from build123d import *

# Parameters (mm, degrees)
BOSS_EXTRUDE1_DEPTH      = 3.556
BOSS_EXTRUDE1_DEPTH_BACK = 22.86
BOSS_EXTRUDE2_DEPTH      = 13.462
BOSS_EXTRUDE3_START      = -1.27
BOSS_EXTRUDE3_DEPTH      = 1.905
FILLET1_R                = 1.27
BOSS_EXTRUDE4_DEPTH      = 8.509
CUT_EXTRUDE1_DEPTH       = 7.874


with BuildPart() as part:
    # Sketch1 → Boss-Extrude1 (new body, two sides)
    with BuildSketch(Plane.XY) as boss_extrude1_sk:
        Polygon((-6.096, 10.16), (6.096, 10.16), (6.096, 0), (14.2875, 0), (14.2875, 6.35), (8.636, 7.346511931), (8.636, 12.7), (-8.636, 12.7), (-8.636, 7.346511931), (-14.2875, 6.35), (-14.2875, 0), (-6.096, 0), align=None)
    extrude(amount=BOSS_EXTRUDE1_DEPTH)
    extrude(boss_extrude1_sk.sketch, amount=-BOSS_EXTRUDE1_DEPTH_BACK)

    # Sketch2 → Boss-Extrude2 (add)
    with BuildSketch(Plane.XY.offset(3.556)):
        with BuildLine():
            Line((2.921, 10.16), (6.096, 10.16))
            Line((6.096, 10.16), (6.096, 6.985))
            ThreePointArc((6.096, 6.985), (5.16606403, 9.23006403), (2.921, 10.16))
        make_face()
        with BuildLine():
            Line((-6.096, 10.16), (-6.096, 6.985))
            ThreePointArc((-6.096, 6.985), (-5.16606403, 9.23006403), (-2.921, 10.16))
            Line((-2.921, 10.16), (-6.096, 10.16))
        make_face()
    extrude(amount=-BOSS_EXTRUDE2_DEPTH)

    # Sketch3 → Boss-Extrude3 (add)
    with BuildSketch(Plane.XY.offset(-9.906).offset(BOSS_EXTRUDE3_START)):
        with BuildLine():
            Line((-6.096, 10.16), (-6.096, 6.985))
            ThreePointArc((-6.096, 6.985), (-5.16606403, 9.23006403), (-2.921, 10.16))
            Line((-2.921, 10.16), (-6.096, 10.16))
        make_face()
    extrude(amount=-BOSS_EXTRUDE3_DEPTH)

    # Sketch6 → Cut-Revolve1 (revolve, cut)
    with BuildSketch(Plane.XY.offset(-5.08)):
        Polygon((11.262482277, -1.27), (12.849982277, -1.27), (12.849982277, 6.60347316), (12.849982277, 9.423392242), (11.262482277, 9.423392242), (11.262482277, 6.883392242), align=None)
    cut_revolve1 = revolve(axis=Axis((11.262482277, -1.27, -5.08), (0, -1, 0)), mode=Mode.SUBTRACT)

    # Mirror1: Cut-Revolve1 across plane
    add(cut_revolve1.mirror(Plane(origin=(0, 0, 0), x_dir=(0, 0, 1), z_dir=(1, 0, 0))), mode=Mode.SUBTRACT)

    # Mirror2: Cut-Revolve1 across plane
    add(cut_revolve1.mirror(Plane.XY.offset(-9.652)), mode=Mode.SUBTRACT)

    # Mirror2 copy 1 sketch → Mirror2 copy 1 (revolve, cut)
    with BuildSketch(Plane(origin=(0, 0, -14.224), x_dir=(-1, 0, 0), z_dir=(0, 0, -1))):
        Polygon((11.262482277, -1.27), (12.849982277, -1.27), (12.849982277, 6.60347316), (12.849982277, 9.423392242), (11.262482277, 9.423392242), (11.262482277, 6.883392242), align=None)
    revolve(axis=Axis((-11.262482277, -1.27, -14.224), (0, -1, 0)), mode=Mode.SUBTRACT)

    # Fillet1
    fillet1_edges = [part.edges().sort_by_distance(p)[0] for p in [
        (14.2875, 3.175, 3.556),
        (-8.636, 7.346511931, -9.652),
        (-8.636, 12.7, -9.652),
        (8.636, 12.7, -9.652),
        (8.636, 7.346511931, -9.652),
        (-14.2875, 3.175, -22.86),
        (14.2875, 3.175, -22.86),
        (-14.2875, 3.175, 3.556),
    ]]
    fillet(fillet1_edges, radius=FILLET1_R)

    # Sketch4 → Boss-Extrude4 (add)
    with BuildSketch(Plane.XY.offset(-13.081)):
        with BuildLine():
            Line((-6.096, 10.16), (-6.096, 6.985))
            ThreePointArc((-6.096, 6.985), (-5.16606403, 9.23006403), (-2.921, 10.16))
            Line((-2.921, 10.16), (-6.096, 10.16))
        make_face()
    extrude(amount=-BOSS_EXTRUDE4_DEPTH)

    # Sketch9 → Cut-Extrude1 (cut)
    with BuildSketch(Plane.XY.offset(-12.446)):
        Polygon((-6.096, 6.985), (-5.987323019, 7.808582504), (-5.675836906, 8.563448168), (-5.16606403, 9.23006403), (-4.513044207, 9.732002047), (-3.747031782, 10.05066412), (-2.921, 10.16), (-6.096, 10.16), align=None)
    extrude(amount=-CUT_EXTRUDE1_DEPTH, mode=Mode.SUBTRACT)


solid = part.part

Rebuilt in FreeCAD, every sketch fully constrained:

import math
import FreeCAD as App
import Part
import Sketcher
Q = App.Units.Quantity


def edges_at(feature, points):
    """Names of the edges that pass closest to the given points."""
    edges = feature.Shape.Edges
    near = lambda p: min(range(len(edges)), key=lambda i: edges[i].distToShape(Part.Vertex(*p))[0])
    return sorted({f"Edge{near(p) + 1}" for p in points})

doc = App.newDocument("Part")
body = doc.addObject("PartDesign::Body", "Body")

# Sketch on XY plane
sketch1 = body.newObject("Sketcher::SketchObject", "Sketch")
sketch1.AttachmentSupport = (doc.getObject("XY_Plane"), [""])
sketch1.MapMode = "FlatFace"
sketch1.addGeometry([
    Part.LineSegment(App.Vector(-6, 10, 0), App.Vector(6, 10, 0)),  # 0
    Part.LineSegment(App.Vector(6, 10, 0), App.Vector(6, 0, 0)),  # 1
    Part.LineSegment(App.Vector(6, 0, 0), App.Vector(14, 0, 0)),  # 2
    Part.LineSegment(App.Vector(14, 0, 0), App.Vector(14, 6, 0)),  # 3
    Part.LineSegment(App.Vector(14, 6, 0), App.Vector(9, 7, 0)),  # 4
    Part.LineSegment(App.Vector(9, 7, 0), App.Vector(9, 13, 0)),  # 5
    Part.LineSegment(App.Vector(9, 13, 0), App.Vector(-9, 13, 0)),  # 6
    Part.LineSegment(App.Vector(-9, 13, 0), App.Vector(-9, 7, 0)),  # 7
    Part.LineSegment(App.Vector(-9, 7, 0), App.Vector(-14, 6, 0)),  # 8
    Part.LineSegment(App.Vector(-14, 6, 0), App.Vector(-14, 0, 0)),  # 9
    Part.LineSegment(App.Vector(-14, 0, 0), App.Vector(-6, 0, 0)),  # 10
    Part.LineSegment(App.Vector(-6, 0, 0), App.Vector(-6, 10, 0)),  # 11
], False)
sketch1.addConstraint([
    Sketcher.Constraint("Coincident", 0, 2, 1, 1),
    Sketcher.Constraint("Coincident", 1, 2, 2, 1),
    Sketcher.Constraint("Coincident", 2, 2, 3, 1),
    Sketcher.Constraint("Coincident", 3, 2, 4, 1),
    Sketcher.Constraint("Coincident", 4, 2, 5, 1),
    Sketcher.Constraint("Coincident", 5, 2, 6, 1),
    Sketcher.Constraint("Coincident", 6, 2, 7, 1),
    Sketcher.Constraint("Coincident", 7, 2, 8, 1),
    Sketcher.Constraint("Coincident", 8, 2, 9, 1),
    Sketcher.Constraint("Coincident", 9, 2, 10, 1),
    Sketcher.Constraint("Coincident", 10, 2, 11, 1),
    Sketcher.Constraint("Coincident", 11, 2, 0, 1),
    Sketcher.Constraint("Horizontal", 0),
    Sketcher.Constraint("Vertical", 1),
    Sketcher.Constraint("Horizontal", 2),
    Sketcher.Constraint("Vertical", 3),
    Sketcher.Constraint("Vertical", 5),
    Sketcher.Constraint("Horizontal", 6),
    Sketcher.Constraint("Vertical", 7),
    Sketcher.Constraint("Vertical", 9),
    Sketcher.Constraint("Horizontal", 10),
    Sketcher.Constraint("Vertical", 11),
    Sketcher.Constraint("Symmetric", 2, 2, 9, 2, -1, 1),
    Sketcher.Constraint("Symmetric", 4, 2, 7, 2, -2),
    Sketcher.Constraint("Symmetric", 1, 2, 10, 2, -2),
    Sketcher.Constraint("Horizontal", 3, 2, 8, 2),
    Sketcher.Constraint("DistanceY", 1, 2, 1, 1, Q("0.4 in")),
    Sketcher.Constraint("Angle", 4, Q("170 deg")),
    Sketcher.Constraint("DistanceX", 0, 1, 0, 2, Q("0.48 in")),
    Sketcher.Constraint("DistanceX", 6, 2, 6, 1, Q("0.68 in")),
    Sketcher.Constraint("DistanceY", 3, 1, 3, 2, Q("0.25 in")),
    Sketcher.Constraint("DistanceY", -1, 1, 5, 2, Q("0.5 in")),
    Sketcher.Constraint("DistanceX", 2, 1, 2, 2, Q("0.3225 in")),
])
pad1 = body.newObject("PartDesign::Pad", "Pad")
pad1.Profile = sketch1
pad1.Type = "TwoLengths"
pad1.Length = Q("0.14 in")
pad1.Length2 = Q("0.9 in")

# Sketch on XY plane
sketch2 = body.newObject("Sketcher::SketchObject", "Sketch001")
sketch2.AttachmentSupport = (doc.getObject("XY_Plane"), [""])
sketch2.MapMode = "FlatFace"
sketch2.AttachmentOffset = App.Placement(App.Vector(0, 0, 0.14 * 25.4), App.Rotation())
sketch2.addGeometry([
    Part.LineSegment(App.Vector(6.1, 10.2, 0), App.Vector(2.9, 10.2, 0)),  # 0
    Part.ArcOfCircle(Part.Circle(App.Vector(2.9, 7, 0), App.Vector(0, 0, 1), 3.2), math.radians(0), math.radians(90)),  # 1
    Part.LineSegment(App.Vector(6.1, 7, 0), App.Vector(6.1, 10.2, 0)),  # 2
    Part.LineSegment(App.Vector(-6.1, 10.2, 0), App.Vector(-6.1, 7, 0)),  # 3
    Part.ArcOfCircle(Part.Circle(App.Vector(-2.9, 7, 0), App.Vector(0, 0, 1), 3.2), math.radians(90), math.radians(180)),  # 4
    Part.LineSegment(App.Vector(-2.9, 10.2, 0), App.Vector(-6.1, 10.2, 0)),  # 5
], False)
sketch2.addConstraint([
    Sketcher.Constraint("Tangent", 0, 2, 1, 2),
    Sketcher.Constraint("Tangent", 1, 1, 2, 1),
    Sketcher.Constraint("Coincident", 2, 2, 0, 1),
    Sketcher.Constraint("Tangent", 3, 2, 4, 2),
    Sketcher.Constraint("Tangent", 4, 1, 5, 1),
    Sketcher.Constraint("Coincident", 5, 2, 3, 1),
    Sketcher.Constraint("Horizontal", 0),
    Sketcher.Constraint("Vertical", 2),
    Sketcher.Constraint("Vertical", 3),
    Sketcher.Constraint("Horizontal", 5),
    Sketcher.Constraint("Equal", 1, 4),
    Sketcher.Constraint("Symmetric", 1, 3, 4, 3, -2),
    Sketcher.Constraint("Radius", 1, Q("0.125 in")),
    Sketcher.Constraint("DistanceY", -1, 1, 0, 2, Q("0.4 in")),
    Sketcher.Constraint("DistanceX", -1, 1, 1, 1, Q("0.24 in")),
])
pad2 = body.newObject("PartDesign::Pad", "Pad001")
pad2.Profile = sketch2
pad2.Length = Q("0.53 in")
pad2.Reversed = True

# Sketch on XY plane
sketch3 = body.newObject("Sketcher::SketchObject", "Sketch002")
sketch3.AttachmentSupport = (doc.getObject("XY_Plane"), [""])
sketch3.MapMode = "FlatFace"
sketch3.AttachmentOffset = App.Placement(App.Vector(0, 0, -0.44 * 25.4), App.Rotation())
sketch3.addGeometry([
    Part.LineSegment(App.Vector(-6.1, 10.2, 0), App.Vector(-6.1, 7, 0)),
    Part.ArcOfCircle(Part.Circle(App.Vector(-2.9, 7, 0), App.Vector(0, 0, 1), 3.2), math.radians(90), math.radians(180)),
    Part.LineSegment(App.Vector(-2.9, 10.2, 0), App.Vector(-6.1, 10.2, 0)),
], False)
sketch3.addConstraint([
    Sketcher.Constraint("Tangent", 0, 2, 1, 2),
    Sketcher.Constraint("Tangent", 1, 1, 2, 1),
    Sketcher.Constraint("Coincident", 2, 2, 0, 1),
    Sketcher.Constraint("Vertical", 0),
    Sketcher.Constraint("Horizontal", 2),
    Sketcher.Constraint("Radius", 1, Q("0.125 in")),
    Sketcher.Constraint("DistanceY", -1, 1, 1, 1, Q("0.4 in")),
    Sketcher.Constraint("DistanceX", 0, 2, -1, 1, Q("0.24 in")),
])
pad3 = body.newObject("PartDesign::Pad", "Pad002")
pad3.Profile = sketch3
pad3.Length = Q("0.075 in")
pad3.Reversed = True

# Sketch on XY plane
sketch4 = body.newObject("Sketcher::SketchObject", "Sketch003")
sketch4.AttachmentSupport = (doc.getObject("XY_Plane"), [""])
sketch4.MapMode = "FlatFace"
sketch4.AttachmentOffset = App.Placement(App.Vector(0, 0, -0.2 * 25.4), App.Rotation())
sketch4.addGeometry([
    Part.LineSegment(App.Vector(11.3, -1.3, 0), App.Vector(12.8, -1.3, 0)),
    Part.LineSegment(App.Vector(12.8, -1.3, 0), App.Vector(12.8, 9.4, 0)),
    Part.LineSegment(App.Vector(12.8, 9.4, 0), App.Vector(11.3, 9.4, 0)),
    Part.LineSegment(App.Vector(11.3, 9.4, 0), App.Vector(11.3, -1.3, 0)),
], False)
sketch4.addGeometry(Part.LineSegment(App.Vector(11.3, 9.4, 0), App.Vector(11.3, -1.3, 0)), True)  # axis
sketch4.addConstraint([
    Sketcher.Constraint("Coincident", 0, 2, 1, 1),
    Sketcher.Constraint("Coincident", 1, 2, 2, 1),
    Sketcher.Constraint("Coincident", 2, 2, 3, 1),
    Sketcher.Constraint("Coincident", 3, 2, 0, 1),
    Sketcher.Constraint("Horizontal", 0),
    Sketcher.Constraint("Vertical", 1),
    Sketcher.Constraint("Horizontal", 2),
    Sketcher.Constraint("Vertical", 3),
    Sketcher.Constraint("Vertical", 4),
    Sketcher.Constraint("Coincident", 4, 1, 2, 2),
    Sketcher.Constraint("Horizontal", 0, 2, 4, 2),
    Sketcher.Constraint("DistanceX", 0, 1, 0, 2, Q("0.0625 in")),
    Sketcher.Constraint("DistanceY", 0, 2, -1, 1, Q("0.05 in")),
    Sketcher.Constraint("DistanceY", 1, 1, 1, 2, 10.693392),
    Sketcher.Constraint("DistanceX", -1, 1, 0, 2, 12.849982),
])
groove = body.newObject("PartDesign::Groove", "Groove")
groove.Profile = sketch4
groove.ReferenceAxis = (sketch4, ["Axis0"])
groove.Angle = 360
doc.recompute()

mirrored = body.newObject("PartDesign::Mirrored", "Mirrored")
mirrored.Originals = [groove]
mirrored.MirrorPlane = (doc.getObject("YZ_Plane"), [""])
body.Tip = mirrored
doc.recompute()

datumplane = body.newObject("PartDesign::Plane", "DatumPlane")
datumplane.AttachmentSupport = (doc.getObject("XY_Plane"), [""])
datumplane.MapMode = "FlatFace"
datumplane.AttachmentOffset = App.Placement(App.Vector(0, 0, -0.38 * 25.4), App.Rotation())
mirrored2 = body.newObject("PartDesign::Mirrored", "Mirrored001")
mirrored2.Originals = [groove]
mirrored2.MirrorPlane = (datumplane, [""])
body.Tip = mirrored2

# Sketch on XY plane
sketch5 = body.newObject("Sketcher::SketchObject", "Sketch004")
sketch5.AttachmentSupport = (doc.getObject("XY_Plane"), [""])
sketch5.MapMode = "FlatFace"
sketch5.AttachmentOffset = App.Placement(App.Vector(0, 0, -0.56 * 25.4), App.Rotation())
sketch5.addGeometry([
    Part.LineSegment(App.Vector(-11.3, -1.3, 0), App.Vector(-12.8, -1.3, 0)),
    Part.LineSegment(App.Vector(-12.8, -1.3, 0), App.Vector(-12.8, 9.4, 0)),
    Part.LineSegment(App.Vector(-12.8, 9.4, 0), App.Vector(-11.3, 9.4, 0)),
    Part.LineSegment(App.Vector(-11.3, 9.4, 0), App.Vector(-11.3, -1.3, 0)),
], False)
sketch5.addGeometry(Part.LineSegment(App.Vector(-11.3, 9.4, 0), App.Vector(-11.3, -1.3, 0)), True)  # axis
sketch5.addConstraint([
    Sketcher.Constraint("Coincident", 0, 2, 1, 1),
    Sketcher.Constraint("Coincident", 1, 2, 2, 1),
    Sketcher.Constraint("Coincident", 2, 2, 3, 1),
    Sketcher.Constraint("Coincident", 3, 2, 0, 1),
    Sketcher.Constraint("Horizontal", 0),
    Sketcher.Constraint("Vertical", 1),
    Sketcher.Constraint("Horizontal", 2),
    Sketcher.Constraint("Vertical", 3),
    Sketcher.Constraint("Vertical", 4),
    Sketcher.Constraint("Coincident", 4, 1, 2, 2),
    Sketcher.Constraint("Horizontal", 0, 2, 4, 2),
    Sketcher.Constraint("DistanceX", 0, 2, 0, 1, Q("0.0625 in")),
    Sketcher.Constraint("DistanceY", 0, 2, -1, 1, Q("0.05 in")),
    Sketcher.Constraint("DistanceY", 1, 1, 1, 2, 10.693392),
    Sketcher.Constraint("DistanceX", 0, 2, -1, 1, 12.849982),
])
groove2 = body.newObject("PartDesign::Groove", "Groove001")
groove2.Profile = sketch5
groove2.ReferenceAxis = (sketch5, ["Axis0"])
groove2.Angle = 360
doc.recompute()

fillet = body.newObject("PartDesign::Fillet", "Fillet")
fillet.Base = (groove2, edges_at(groove2, [
    (14.287, 3.175, 3.556),
    (-8.636, 7.347, -9.652),
    (-8.636, 12.7, -9.652),
    (8.636, 12.7, -9.652),
    (8.636, 7.347, -9.652),
    (-14.287, 3.175, -22.86),
    (14.287, 3.175, -22.86),
    (-14.287, 3.175, 3.556),
]))
fillet.Radius = Q("0.05 in")

# Sketch on XY plane
sketch6 = body.newObject("Sketcher::SketchObject", "Sketch005")
sketch6.AttachmentSupport = (doc.getObject("XY_Plane"), [""])
sketch6.MapMode = "FlatFace"
sketch6.AttachmentOffset = App.Placement(App.Vector(0, 0, -0.515 * 25.4), App.Rotation())
sketch6.addGeometry([
    Part.LineSegment(App.Vector(-6.1, 10.2, 0), App.Vector(-6.1, 7, 0)),
    Part.ArcOfCircle(Part.Circle(App.Vector(-2.9, 7, 0), App.Vector(0, 0, 1), 3.2), math.radians(90), math.radians(180)),
    Part.LineSegment(App.Vector(-2.9, 10.2, 0), App.Vector(-6.1, 10.2, 0)),
], False)
sketch6.addConstraint([
    Sketcher.Constraint("Tangent", 0, 2, 1, 2),
    Sketcher.Constraint("Tangent", 1, 1, 2, 1),
    Sketcher.Constraint("Coincident", 2, 2, 0, 1),
    Sketcher.Constraint("Vertical", 0),
    Sketcher.Constraint("Horizontal", 2),
    Sketcher.Constraint("Radius", 1, Q("0.125 in")),
    Sketcher.Constraint("DistanceY", -1, 1, 1, 1, Q("0.4 in")),
    Sketcher.Constraint("DistanceX", 0, 2, -1, 1, Q("0.24 in")),
])
pad4 = body.newObject("PartDesign::Pad", "Pad003")
pad4.Profile = sketch6
pad4.Length = Q("0.335 in")
pad4.Reversed = True

# Sketch on XY plane
sketch7 = body.newObject("Sketcher::SketchObject", "Sketch006")
sketch7.AttachmentSupport = (doc.getObject("XY_Plane"), [""])
sketch7.MapMode = "FlatFace"
sketch7.AttachmentOffset = App.Placement(App.Vector(0, 0, -0.49 * 25.4), App.Rotation())
sketch7.addGeometry([
    Part.LineSegment(App.Vector(-6.1, 7, 0), App.Vector(-6, 7.8, 0)),  # 0
    Part.LineSegment(App.Vector(-6, 7.8, 0), App.Vector(-5.7, 8.6, 0)),  # 1
    Part.LineSegment(App.Vector(-5.7, 8.6, 0), App.Vector(-5.2, 9.2, 0)),  # 2
    Part.LineSegment(App.Vector(-5.2, 9.2, 0), App.Vector(-4.5, 9.7, 0)),  # 3
    Part.LineSegment(App.Vector(-4.5, 9.7, 0), App.Vector(-3.7, 10.1, 0)),  # 4
    Part.LineSegment(App.Vector(-3.7, 10.1, 0), App.Vector(-2.9, 10.2, 0)),  # 5
    Part.LineSegment(App.Vector(-2.9, 10.2, 0), App.Vector(-6.1, 10.2, 0)),  # 6
    Part.LineSegment(App.Vector(-6.1, 10.2, 0), App.Vector(-6.1, 7, 0)),  # 7
], False)
sketch7.addConstraint([
    Sketcher.Constraint("Coincident", 0, 2, 1, 1),
    Sketcher.Constraint("Coincident", 1, 2, 2, 1),
    Sketcher.Constraint("Coincident", 2, 2, 3, 1),
    Sketcher.Constraint("Coincident", 3, 2, 4, 1),
    Sketcher.Constraint("Coincident", 4, 2, 5, 1),
    Sketcher.Constraint("Coincident", 5, 2, 6, 1),
    Sketcher.Constraint("Coincident", 6, 2, 7, 1),
    Sketcher.Constraint("Coincident", 7, 2, 0, 1),
    Sketcher.Constraint("Horizontal", 6),
    Sketcher.Constraint("Vertical", 7),
    Sketcher.Constraint("Equal", 6, 7),
    Sketcher.Constraint("DistanceY", -1, 1, 5, 2, Q("0.4 in")),
    Sketcher.Constraint("DistanceX", 6, 2, 6, 1, Q("0.125 in")),
    Sketcher.Constraint("DistanceX", 6, 2, -1, 1, Q("0.24 in")),
    Sketcher.Constraint("Angle", 5, Q("7.54 deg")),
    Sketcher.Constraint("DistanceY", 2, 2, 4, 2, 0.8206),
    Sketcher.Constraint("Distance", 0, 0.830722),
    Sketcher.Constraint("Distance", 4, 0.829651),
    Sketcher.Constraint("DistanceY", -1, 1, 1, 2, 8.563448),
    Sketcher.Constraint("DistanceX", 4, 2, -1, 1, 3.747032),
    Sketcher.Constraint("DistanceX", 0, 2, 2, 2, 0.821259),
    Sketcher.Constraint("DistanceY", 0, 2, 2, 2, 1.421482),
    Sketcher.Constraint("DistanceX", 2, 2, 3, 2, 0.65302),
    Sketcher.Constraint("Distance", 1, 0.816606),
])
pocket1 = body.newObject("PartDesign::Pocket", "Pocket")
pocket1.Profile = sketch7
pocket1.Length = Q("0.31 in")

doc.recompute()
